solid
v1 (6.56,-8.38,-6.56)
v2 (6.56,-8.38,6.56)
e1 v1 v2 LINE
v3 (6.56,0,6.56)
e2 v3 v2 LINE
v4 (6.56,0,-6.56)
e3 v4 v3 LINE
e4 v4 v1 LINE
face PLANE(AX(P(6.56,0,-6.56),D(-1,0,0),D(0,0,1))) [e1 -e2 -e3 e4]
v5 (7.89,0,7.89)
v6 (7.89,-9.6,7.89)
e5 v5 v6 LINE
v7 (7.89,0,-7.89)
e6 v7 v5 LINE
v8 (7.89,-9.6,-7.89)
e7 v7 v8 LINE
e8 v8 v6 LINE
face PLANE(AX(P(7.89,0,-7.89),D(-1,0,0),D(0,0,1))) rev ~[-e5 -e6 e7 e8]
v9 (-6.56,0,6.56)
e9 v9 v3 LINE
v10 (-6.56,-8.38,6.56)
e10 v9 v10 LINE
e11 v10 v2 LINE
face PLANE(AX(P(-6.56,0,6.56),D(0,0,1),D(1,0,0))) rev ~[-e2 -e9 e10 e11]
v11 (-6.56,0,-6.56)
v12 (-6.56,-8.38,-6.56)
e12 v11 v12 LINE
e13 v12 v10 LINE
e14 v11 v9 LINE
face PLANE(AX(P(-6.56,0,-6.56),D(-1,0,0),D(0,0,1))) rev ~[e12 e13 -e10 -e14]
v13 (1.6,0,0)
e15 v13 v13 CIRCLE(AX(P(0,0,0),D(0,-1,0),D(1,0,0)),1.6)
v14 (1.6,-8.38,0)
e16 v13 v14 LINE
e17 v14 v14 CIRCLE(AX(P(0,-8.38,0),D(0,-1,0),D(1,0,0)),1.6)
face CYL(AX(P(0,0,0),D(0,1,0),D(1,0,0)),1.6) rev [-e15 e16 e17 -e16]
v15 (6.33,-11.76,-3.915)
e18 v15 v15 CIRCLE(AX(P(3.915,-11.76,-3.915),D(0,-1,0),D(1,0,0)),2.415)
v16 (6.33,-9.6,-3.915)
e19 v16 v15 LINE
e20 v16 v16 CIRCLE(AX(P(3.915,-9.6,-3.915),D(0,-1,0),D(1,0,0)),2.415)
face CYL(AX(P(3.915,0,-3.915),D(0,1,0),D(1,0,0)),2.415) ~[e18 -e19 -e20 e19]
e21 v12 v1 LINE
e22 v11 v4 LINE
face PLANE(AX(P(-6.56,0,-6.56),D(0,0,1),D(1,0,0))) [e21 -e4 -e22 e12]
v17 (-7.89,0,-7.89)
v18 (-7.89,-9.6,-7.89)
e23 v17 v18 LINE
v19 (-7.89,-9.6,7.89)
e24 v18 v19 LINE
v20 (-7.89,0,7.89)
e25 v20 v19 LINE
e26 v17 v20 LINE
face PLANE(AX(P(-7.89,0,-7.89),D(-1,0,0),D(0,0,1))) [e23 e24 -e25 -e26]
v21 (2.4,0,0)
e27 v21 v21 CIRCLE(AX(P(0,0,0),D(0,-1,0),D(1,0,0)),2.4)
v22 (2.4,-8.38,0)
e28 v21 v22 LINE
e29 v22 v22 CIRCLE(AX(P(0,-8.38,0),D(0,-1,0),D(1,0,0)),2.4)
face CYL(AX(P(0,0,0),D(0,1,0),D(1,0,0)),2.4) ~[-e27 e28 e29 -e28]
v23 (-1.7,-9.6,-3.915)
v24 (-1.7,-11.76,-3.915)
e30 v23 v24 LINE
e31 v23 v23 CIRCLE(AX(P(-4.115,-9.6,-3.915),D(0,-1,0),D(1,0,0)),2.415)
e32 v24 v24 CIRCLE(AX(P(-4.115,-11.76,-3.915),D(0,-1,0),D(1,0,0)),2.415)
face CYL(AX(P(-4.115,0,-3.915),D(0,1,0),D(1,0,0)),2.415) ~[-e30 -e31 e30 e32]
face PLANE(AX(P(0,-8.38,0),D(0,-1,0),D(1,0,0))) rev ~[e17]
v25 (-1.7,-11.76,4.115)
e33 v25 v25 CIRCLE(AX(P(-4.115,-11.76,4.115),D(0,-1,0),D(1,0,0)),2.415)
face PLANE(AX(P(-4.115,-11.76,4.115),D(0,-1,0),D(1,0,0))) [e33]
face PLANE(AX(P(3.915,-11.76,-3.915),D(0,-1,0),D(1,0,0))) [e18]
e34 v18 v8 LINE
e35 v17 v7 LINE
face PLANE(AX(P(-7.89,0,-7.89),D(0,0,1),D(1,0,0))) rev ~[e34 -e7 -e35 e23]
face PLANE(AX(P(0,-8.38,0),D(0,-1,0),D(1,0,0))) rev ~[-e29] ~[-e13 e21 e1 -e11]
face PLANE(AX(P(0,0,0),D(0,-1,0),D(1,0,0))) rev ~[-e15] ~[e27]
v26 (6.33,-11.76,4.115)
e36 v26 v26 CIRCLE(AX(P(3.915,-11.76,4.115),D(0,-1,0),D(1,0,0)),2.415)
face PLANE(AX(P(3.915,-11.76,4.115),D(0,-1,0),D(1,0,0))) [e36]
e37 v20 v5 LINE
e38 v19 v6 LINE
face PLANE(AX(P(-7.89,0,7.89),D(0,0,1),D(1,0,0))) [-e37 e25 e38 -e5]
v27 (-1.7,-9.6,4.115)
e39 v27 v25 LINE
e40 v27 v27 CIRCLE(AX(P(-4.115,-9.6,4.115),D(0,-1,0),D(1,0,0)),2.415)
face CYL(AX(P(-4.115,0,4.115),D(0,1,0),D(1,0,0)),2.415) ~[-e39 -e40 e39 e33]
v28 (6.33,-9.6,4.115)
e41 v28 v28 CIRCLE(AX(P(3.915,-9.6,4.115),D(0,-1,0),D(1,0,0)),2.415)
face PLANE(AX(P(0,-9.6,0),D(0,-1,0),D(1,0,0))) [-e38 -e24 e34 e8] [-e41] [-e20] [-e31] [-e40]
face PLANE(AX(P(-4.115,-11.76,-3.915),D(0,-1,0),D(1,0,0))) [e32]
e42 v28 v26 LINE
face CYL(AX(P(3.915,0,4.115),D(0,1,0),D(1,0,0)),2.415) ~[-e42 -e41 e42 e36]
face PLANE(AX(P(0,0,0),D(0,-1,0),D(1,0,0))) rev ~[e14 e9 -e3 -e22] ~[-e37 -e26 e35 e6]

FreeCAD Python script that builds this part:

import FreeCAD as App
import Part
import Sketcher

doc = App.newDocument("Part")
body = doc.addObject("PartDesign::Body", "Body")

sketch1 = doc.addObject("Sketcher::SketchObject", "Sketch")
body.addObject(sketch1)
sketch1.AttachmentSupport = (doc.XZ_Plane, [""])
sketch1.MapMode = "FlatFace"
sketch1.addGeometry(Part.LineSegment(App.Vector(-7.9, 7.9, 0), App.Vector(-7.9, -7.9, 0)), False)
sketch1.addGeometry(Part.LineSegment(App.Vector(-7.9, -7.9, 0), App.Vector(7.9, -7.9, 0)), False)
sketch1.addGeometry(Part.LineSegment(App.Vector(7.9, -7.9, 0), App.Vector(7.9, 7.9, 0)), False)
sketch1.addGeometry(Part.LineSegment(App.Vector(7.9, 7.9, 0), App.Vector(-7.9, 7.9, 0)), False)
sketch1.addGeometry(Part.Circle(App.Vector(-4.1, -3.9, 0), App.Vector(0, 0, 1), 2.4), False)
sketch1.addGeometry(Part.Circle(App.Vector(3.9, -3.9, 0), App.Vector(0, 0, 1), 2.4), False)
sketch1.addGeometry(Part.Circle(App.Vector(-4.1, 4.1, 0), App.Vector(0, 0, 1), 2.4), False)
sketch1.addGeometry(Part.Circle(App.Vector(3.9, 4.1, 0), App.Vector(0, 0, 1), 2.4), False)
sketch1.addConstraint(Sketcher.Constraint("Coincident", 0, 2, 1, 1))
sketch1.addConstraint(Sketcher.Constraint("Coincident", 1, 2, 2, 1))
sketch1.addConstraint(Sketcher.Constraint("Coincident", 2, 2, 3, 1))
sketch1.addConstraint(Sketcher.Constraint("Coincident", 3, 2, 0, 1))
sketch1.addConstraint(Sketcher.Constraint("Vertical", 0))
sketch1.addConstraint(Sketcher.Constraint("Horizontal", 1))
sketch1.addConstraint(Sketcher.Constraint("Vertical", 2))
sketch1.addConstraint(Sketcher.Constraint("Horizontal", 3))
sketch1.addConstraint(Sketcher.Constraint("Equal", 4, 5))
sketch1.addConstraint(Sketcher.Constraint("Equal", 5, 6))
sketch1.addConstraint(Sketcher.Constraint("Equal", 6, 7))
sketch1.addConstraint(Sketcher.Constraint("Symmetric", 0, 2, 2, 2, -1, 1))
sketch1.addConstraint(Sketcher.Constraint("Horizontal", 4, 3, 5, 3))
sketch1.addConstraint(Sketcher.Constraint("Horizontal", 6, 3, 7, 3))
sketch1.addConstraint(Sketcher.Constraint("Vertical", 4, 3, 6, 3))
sketch1.addConstraint(Sketcher.Constraint("Vertical", 5, 3, 7, 3))
sketch1.addConstraint(Sketcher.Constraint("Equal", 3, 0))
sketch1.addConstraint(Sketcher.Constraint("Diameter", 4, 4.83))
sketch1.addConstraint(Sketcher.Constraint("DistanceX", 1, 1, 1, 2, 15.78))
sketch1.addConstraint(Sketcher.Constraint("DistanceX", 4, 3, 5, 3, 8.03))
sketch1.addConstraint(Sketcher.Constraint("DistanceY", 4, 3, 6, 3, 8.03))
sketch1.addConstraint(Sketcher.Constraint("DistanceX", 4, 3, -1, 1, 4.115))
sketch1.addConstraint(Sketcher.Constraint("DistanceY", 4, 3, -1, 1, 3.915))
pad1 = doc.addObject("PartDesign::Pad", "Pad")
body.addObject(pad1)
pad1.Profile = sketch1
pad1.Length = 9.6

sketch2 = doc.addObject("Sketcher::SketchObject", "Sketch001")
body.addObject(sketch2)
sketch2.AttachmentSupport = (doc.XZ_Plane, [""])
sketch2.MapMode = "FlatFace"
sketch2.addGeometry(Part.Circle(App.Vector(-4.1, 4.1, 0), App.Vector(0, 0, 1), 2.4), False)
sketch2.addGeometry(Part.Circle(App.Vector(3.9, 4.1, 0), App.Vector(0, 0, 1), 2.4), False)
sketch2.addGeometry(Part.Circle(App.Vector(-4.1, -3.9, 0), App.Vector(0, 0, 1), 2.4), False)
sketch2.addGeometry(Part.Circle(App.Vector(3.9, -3.9, 0), App.Vector(0, 0, 1), 2.4), False)
sketch2.addConstraint(Sketcher.Constraint("Equal", 0, 1))
sketch2.addConstraint(Sketcher.Constraint("Equal", 1, 2))
sketch2.addConstraint(Sketcher.Constraint("Equal", 2, 3))
sketch2.addConstraint(Sketcher.Constraint("Horizontal", 0, 3, 1, 3))
sketch2.addConstraint(Sketcher.Constraint("Horizontal", 2, 3, 3, 3))
sketch2.addConstraint(Sketcher.Constraint("Vertical", 0, 3, 2, 3))
sketch2.addConstraint(Sketcher.Constraint("Vertical", 1, 3, 3, 3))
sketch2.addConstraint(Sketcher.Constraint("Diameter", 0, 4.83))
sketch2.addConstraint(Sketcher.Constraint("DistanceX", 0, 3, 1, 3, 8.03))
sketch2.addConstraint(Sketcher.Constraint("DistanceY", 2, 3, 0, 3, 8.03))
sketch2.addConstraint(Sketcher.Constraint("DistanceX", 0, 3, -1, 1, 4.115))
sketch2.addConstraint(Sketcher.Constraint("DistanceY", -1, 1, 0, 3, 4.115))
pad2 = doc.addObject("PartDesign::Pad", "Pad001")
body.addObject(pad2)
pad2.Profile = sketch2
pad2.Length = 11.76

sketch3 = doc.addObject("Sketcher::SketchObject", "Sketch002")
body.addObject(sketch3)
sketch3.AttachmentSupport = (doc.XZ_Plane, [""])
sketch3.MapMode = "FlatFace"
sketch3.addGeometry(Part.LineSegment(App.Vector(-6.6, 6.6, 0), App.Vector(-6.6, -6.6, 0)), False)
sketch3.addGeometry(Part.LineSegment(App.Vector(-6.6, -6.6, 0), App.Vector(6.6, -6.6, 0)), False)
sketch3.addGeometry(Part.LineSegment(App.Vector(6.6, -6.6, 0), App.Vector(6.6, 6.6, 0)), False)
sketch3.addGeometry(Part.LineSegment(App.Vector(6.6, 6.6, 0), App.Vector(-6.6, 6.6, 0)), False)
sketch3.addGeometry(Part.Circle(App.Vector(-4.1, -3.9, 0), App.Vector(0, 0, 1), 2.4), False)
sketch3.addGeometry(Part.Circle(App.Vector(3.9, -3.9, 0), App.Vector(0, 0, 1), 2.4), False)
sketch3.addGeometry(Part.Circle(App.Vector(0, 0, 0), App.Vector(0, 0, 1), 2.4), False)
sketch3.addGeometry(Part.Circle(App.Vector(-4.1, 4.1, 0), App.Vector(0, 0, 1), 2.4), False)
sketch3.addGeometry(Part.Circle(App.Vector(3.9, 4.1, 0), App.Vector(0, 0, 1), 2.4), False)
sketch3.addConstraint(Sketcher.Constraint("Coincident", 0, 2, 1, 1))
sketch3.addConstraint(Sketcher.Constraint("Coincident", 1, 2, 2, 1))
sketch3.addConstraint(Sketcher.Constraint("Coincident", 2, 2, 3, 1))
sketch3.addConstraint(Sketcher.Constraint("Coincident", 3, 2, 0, 1))
sketch3.addConstraint(Sketcher.Constraint("Vertical", 0))
sketch3.addConstraint(Sketcher.Constraint("Horizontal", 1))
sketch3.addConstraint(Sketcher.Constraint("Vertical", 2))
sketch3.addConstraint(Sketcher.Constraint("Horizontal", 3))
sketch3.addConstraint(Sketcher.Constraint("Coincident", 6, 3, -1, 1))
sketch3.addConstraint(Sketcher.Constraint("Equal", 4, 5))
sketch3.addConstraint(Sketcher.Constraint("Equal", 5, 7))
sketch3.addConstraint(Sketcher.Constraint("Equal", 7, 8))
sketch3.addConstraint(Sketcher.Constraint("Symmetric", 0, 2, 2, 2, -1, 1))
sketch3.addConstraint(Sketcher.Constraint("Horizontal", 4, 3, 5, 3))
sketch3.addConstraint(Sketcher.Constraint("Horizontal", 7, 3, 8, 3))
sketch3.addConstraint(Sketcher.Constraint("Vertical", 4, 3, 7, 3))
sketch3.addConstraint(Sketcher.Constraint("Vertical", 5, 3, 8, 3))
sketch3.addConstraint(Sketcher.Constraint("Equal", 3, 0))
sketch3.addConstraint(Sketcher.Constraint("Diameter", 6, 4.8))
sketch3.addConstraint(Sketcher.Constraint("Diameter", 4, 4.83))
sketch3.addConstraint(Sketcher.Constraint("DistanceX", 1, 1, 1, 2, 13.12))
sketch3.addConstraint(Sketcher.Constraint("DistanceX", 4, 3, 5, 3, 8.03))
sketch3.addConstraint(Sketcher.Constraint("DistanceY", 4, 3, 7, 3, 8.03))
sketch3.addConstraint(Sketcher.Constraint("DistanceX", 4, 3, -1, 1, 4.115))
sketch3.addConstraint(Sketcher.Constraint("DistanceY", 4, 3, -1, 1, 3.915))
pocket1 = doc.addObject("PartDesign::Pocket", "Pocket")
body.addObject(pocket1)
pocket1.Profile = sketch3
pocket1.Length = 8.38
pocket1.Reversed = True

sketch4 = doc.addObject("Sketcher::SketchObject", "Sketch003")
body.addObject(sketch4)
sketch4.AttachmentSupport = (doc.XZ_Plane, [""])
sketch4.MapMode = "FlatFace"
sketch4.addGeometry(Part.Circle(App.Vector(3.9, 4.1, 0), App.Vector(0, 0, 1), 2.4), False)
sketch4.addGeometry(Part.Circle(App.Vector(-4.1, 4.1, 0), App.Vector(0, 0, 1), 2.4), False)
sketch4.addGeometry(Part.Circle(App.Vector(3.9, -3.9, 0), App.Vector(0, 0, 1), 2.4), False)
sketch4.addGeometry(Part.Circle(App.Vector(-4.1, -3.9, 0), App.Vector(0, 0, 1), 2.4), False)
sketch4.addGeometry(Part.Circle(App.Vector(0, 0, 0), App.Vector(0, 0, 1), 1.6), False)
sketch4.addConstraint(Sketcher.Constraint("Coincident", 4, 3, -1, 1))
sketch4.addConstraint(Sketcher.Constraint("Equal", 0, 1))
sketch4.addConstraint(Sketcher.Constraint("Equal", 1, 2))
sketch4.addConstraint(Sketcher.Constraint("Equal", 2, 3))
sketch4.addConstraint(Sketcher.Constraint("Horizontal", 0, 3, 1, 3))
sketch4.addConstraint(Sketcher.Constraint("Horizontal", 2, 3, 3, 3))
sketch4.addConstraint(Sketcher.Constraint("Vertical", 0, 3, 2, 3))
sketch4.addConstraint(Sketcher.Constraint("Vertical", 1, 3, 3, 3))
sketch4.addConstraint(Sketcher.Constraint("Diameter", 4, 3.2))
sketch4.addConstraint(Sketcher.Constraint("Diameter", 0, 4.83))
sketch4.addConstraint(Sketcher.Constraint("DistanceX", 1, 3, 0, 3, 8.03))
sketch4.addConstraint(Sketcher.Constraint("DistanceY", 2, 3, 0, 3, 8.03))
sketch4.addConstraint(Sketcher.Constraint("DistanceX", -1, 1, 0, 3, 3.915))
sketch4.addConstraint(Sketcher.Constraint("DistanceY", -1, 1, 0, 3, 4.115))
pocket2 = doc.addObject("PartDesign::Pocket", "Pocket001")
body.addObject(pocket2)
pocket2.Profile = sketch4
pocket2.Length = 8.38
pocket2.Reversed = True

doc.recompute()
